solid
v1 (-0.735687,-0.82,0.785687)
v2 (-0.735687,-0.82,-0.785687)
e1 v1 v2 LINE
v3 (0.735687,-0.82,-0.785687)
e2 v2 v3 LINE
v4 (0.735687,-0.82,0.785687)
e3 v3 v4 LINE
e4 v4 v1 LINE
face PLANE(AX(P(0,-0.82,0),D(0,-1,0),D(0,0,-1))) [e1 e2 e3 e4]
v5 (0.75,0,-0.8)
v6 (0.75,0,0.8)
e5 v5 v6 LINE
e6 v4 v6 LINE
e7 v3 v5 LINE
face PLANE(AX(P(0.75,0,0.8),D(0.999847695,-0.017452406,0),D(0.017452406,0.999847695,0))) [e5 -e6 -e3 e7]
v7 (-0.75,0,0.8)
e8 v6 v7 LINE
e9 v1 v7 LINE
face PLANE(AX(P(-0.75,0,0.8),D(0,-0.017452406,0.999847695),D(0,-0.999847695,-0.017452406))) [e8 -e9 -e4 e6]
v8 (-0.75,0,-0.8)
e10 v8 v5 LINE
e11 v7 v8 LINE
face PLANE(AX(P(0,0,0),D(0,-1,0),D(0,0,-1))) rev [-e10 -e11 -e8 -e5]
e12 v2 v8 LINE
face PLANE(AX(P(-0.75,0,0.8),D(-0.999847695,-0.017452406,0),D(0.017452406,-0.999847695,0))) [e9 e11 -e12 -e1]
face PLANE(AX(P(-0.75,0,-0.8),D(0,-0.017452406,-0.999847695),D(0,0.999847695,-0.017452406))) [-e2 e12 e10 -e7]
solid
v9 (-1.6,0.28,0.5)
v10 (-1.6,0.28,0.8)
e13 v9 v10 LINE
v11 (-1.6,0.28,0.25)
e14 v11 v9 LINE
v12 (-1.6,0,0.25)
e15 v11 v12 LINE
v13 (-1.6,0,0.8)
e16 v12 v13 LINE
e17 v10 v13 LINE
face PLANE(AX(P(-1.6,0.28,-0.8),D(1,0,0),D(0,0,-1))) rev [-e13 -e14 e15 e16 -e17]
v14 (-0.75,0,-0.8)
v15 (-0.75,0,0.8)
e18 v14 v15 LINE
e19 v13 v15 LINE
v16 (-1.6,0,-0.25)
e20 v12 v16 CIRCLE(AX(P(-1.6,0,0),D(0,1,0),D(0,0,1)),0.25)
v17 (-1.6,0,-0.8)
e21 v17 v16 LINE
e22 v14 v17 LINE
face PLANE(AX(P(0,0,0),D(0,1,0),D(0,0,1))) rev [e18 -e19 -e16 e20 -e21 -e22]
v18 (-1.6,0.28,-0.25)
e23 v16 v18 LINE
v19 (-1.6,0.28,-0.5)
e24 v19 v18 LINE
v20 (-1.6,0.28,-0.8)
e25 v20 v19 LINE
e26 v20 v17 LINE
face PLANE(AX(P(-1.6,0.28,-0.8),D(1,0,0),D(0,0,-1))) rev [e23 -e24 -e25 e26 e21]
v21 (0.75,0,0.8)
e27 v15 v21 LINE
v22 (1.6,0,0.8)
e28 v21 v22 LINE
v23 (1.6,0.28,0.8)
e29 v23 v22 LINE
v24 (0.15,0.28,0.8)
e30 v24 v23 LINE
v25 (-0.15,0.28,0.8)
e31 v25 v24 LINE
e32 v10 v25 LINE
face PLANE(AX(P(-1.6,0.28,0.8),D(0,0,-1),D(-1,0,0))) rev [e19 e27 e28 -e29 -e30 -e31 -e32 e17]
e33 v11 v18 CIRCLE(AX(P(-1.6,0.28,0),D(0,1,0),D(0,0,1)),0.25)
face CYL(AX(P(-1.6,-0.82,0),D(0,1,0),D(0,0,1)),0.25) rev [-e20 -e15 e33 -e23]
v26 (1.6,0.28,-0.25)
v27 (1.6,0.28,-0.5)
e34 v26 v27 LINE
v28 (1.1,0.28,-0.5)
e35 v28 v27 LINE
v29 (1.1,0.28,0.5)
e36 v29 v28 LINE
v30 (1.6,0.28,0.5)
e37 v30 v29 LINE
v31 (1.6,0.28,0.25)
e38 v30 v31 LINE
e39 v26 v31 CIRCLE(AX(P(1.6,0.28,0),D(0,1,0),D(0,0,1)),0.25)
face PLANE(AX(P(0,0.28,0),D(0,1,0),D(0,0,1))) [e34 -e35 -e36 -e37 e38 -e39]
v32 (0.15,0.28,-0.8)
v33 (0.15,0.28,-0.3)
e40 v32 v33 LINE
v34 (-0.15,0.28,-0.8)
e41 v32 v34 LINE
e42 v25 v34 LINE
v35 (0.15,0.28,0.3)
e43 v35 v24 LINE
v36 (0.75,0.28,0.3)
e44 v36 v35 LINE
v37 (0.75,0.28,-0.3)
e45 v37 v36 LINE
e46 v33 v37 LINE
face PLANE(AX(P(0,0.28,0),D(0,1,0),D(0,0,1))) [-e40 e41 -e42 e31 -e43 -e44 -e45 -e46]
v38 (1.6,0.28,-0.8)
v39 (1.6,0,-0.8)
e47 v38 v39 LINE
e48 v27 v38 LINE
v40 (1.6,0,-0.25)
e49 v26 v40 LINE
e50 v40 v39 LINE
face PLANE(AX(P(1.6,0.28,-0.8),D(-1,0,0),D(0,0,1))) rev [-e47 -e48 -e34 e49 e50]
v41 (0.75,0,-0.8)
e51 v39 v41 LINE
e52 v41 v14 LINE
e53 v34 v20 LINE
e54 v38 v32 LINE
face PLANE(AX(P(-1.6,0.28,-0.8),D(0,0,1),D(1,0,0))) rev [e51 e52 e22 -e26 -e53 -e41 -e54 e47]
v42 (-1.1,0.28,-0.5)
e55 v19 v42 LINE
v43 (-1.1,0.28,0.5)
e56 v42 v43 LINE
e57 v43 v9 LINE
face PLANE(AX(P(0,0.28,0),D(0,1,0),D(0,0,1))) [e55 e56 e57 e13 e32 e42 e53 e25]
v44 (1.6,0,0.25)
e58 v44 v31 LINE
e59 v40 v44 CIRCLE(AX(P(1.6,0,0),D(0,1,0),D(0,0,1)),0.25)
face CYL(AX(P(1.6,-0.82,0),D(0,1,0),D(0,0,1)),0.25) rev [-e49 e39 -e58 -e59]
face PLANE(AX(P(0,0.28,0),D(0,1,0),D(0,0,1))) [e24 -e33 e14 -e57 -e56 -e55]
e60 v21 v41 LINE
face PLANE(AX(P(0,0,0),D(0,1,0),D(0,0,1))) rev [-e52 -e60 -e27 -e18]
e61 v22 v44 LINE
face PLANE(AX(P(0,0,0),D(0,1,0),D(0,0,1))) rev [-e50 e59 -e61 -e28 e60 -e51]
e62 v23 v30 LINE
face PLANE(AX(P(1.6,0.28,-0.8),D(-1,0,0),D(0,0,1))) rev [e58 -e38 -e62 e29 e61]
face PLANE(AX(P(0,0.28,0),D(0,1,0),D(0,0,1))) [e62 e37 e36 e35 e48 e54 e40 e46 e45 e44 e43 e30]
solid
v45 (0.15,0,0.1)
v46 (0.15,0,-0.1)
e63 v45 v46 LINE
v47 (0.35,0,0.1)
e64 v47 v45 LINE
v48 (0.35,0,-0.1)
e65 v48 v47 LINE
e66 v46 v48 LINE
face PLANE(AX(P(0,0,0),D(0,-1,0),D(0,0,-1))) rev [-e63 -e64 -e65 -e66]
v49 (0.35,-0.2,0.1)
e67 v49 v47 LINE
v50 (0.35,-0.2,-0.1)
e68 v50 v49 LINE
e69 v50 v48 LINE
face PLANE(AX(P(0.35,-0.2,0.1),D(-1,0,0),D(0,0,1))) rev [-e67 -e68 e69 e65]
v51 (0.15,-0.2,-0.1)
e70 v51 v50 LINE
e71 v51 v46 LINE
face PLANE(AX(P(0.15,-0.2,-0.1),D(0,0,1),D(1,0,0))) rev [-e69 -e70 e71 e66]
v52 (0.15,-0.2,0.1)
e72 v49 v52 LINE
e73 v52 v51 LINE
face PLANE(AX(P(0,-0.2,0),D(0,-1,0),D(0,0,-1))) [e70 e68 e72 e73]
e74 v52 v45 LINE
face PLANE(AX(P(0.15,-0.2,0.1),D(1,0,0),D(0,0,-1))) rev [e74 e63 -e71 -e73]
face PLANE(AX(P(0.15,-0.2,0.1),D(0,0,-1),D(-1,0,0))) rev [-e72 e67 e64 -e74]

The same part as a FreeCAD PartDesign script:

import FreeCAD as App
import Part
import Sketcher

V = App.Vector
Q = App.Units.Quantity

doc = App.newDocument("Part")
body = doc.addObject("PartDesign::Body", "Body")

# Sketch on XZ plane
sketch1 = body.newObject("Sketcher::SketchObject", "Sketch")
sketch1.AttachmentSupport = (doc.getObject("XZ_Plane"), [""])
sketch1.MapMode = "FlatFace"
sketch1.addGeometry([
    Part.LineSegment(V(-1.6, -0.8, 0), V(-1.6, 0.8, 0)),
    Part.LineSegment(V(-1.6, 0.8, 0), V(1.6, 0.8, 0)),
    Part.LineSegment(V(1.6, 0.8, 0), V(1.6, -0.8, 0)),
    Part.LineSegment(V(1.6, -0.8, 0), V(-1.6, -0.8, 0)),
], False)
sketch1.addConstraint([
    Sketcher.Constraint("Coincident", 0, 2, 1, 1),
    Sketcher.Constraint("Coincident", 1, 2, 2, 1),
    Sketcher.Constraint("Coincident", 2, 2, 3, 1),
    Sketcher.Constraint("Coincident", 3, 2, 0, 1),
    Sketcher.Constraint("Vertical", 0),
    Sketcher.Constraint("Horizontal", 1),
    Sketcher.Constraint("Vertical", 2),
    Sketcher.Constraint("Horizontal", 3),
    Sketcher.Constraint("Symmetric", 0, 2, 2, 2, -1, 1),
    Sketcher.Constraint("DistanceX", 1, 1, 1, 2, Q("3.2 mm")),
    Sketcher.Constraint("DistanceY", 0, 1, 0, 2, Q("1.6 mm")),
])
pad1 = body.newObject("PartDesign::Pad", "Pad")
pad1.Profile = sketch1
pad1.Length = 0.28
pad1.Reversed = True

# Sketch on XZ plane
sketch2 = body.newObject("Sketcher::SketchObject", "Sketch001")
sketch2.AttachmentSupport = (doc.getObject("XZ_Plane"), [""])
sketch2.MapMode = "FlatFace"
sketch2.AttachmentOffset = App.Placement(V(0, 0, -0.28), App.Rotation())
sketch2.addGeometry([
    Part.Circle(V(-1.6, 0, 0), V(0, 0, 1), 0.25),
    Part.Circle(V(1.6, 0, 0), V(0, 0, 1), 0.25),
], False)
sketch2.addConstraint([
    Sketcher.Constraint("Equal", 0, 1),
    Sketcher.Constraint("Symmetric", 0, 3, 1, 3, -1, 1),
    Sketcher.Constraint("PointOnObject", 0, 3, -1),
    Sketcher.Constraint("Diameter", 0, Q("0.5 mm")),
    Sketcher.Constraint("DistanceX", 0, 3, -1, 1, Q("1.6 mm")),
])
pocket1 = body.newObject("PartDesign::Pocket", "Pocket")
pocket1.Profile = sketch2
pocket1.Type = "ThroughAll"
pocket1.Reversed = True
body2 = doc.addObject("PartDesign::Body", "Body001")

# Sketch on XZ plane
sketch3 = body2.newObject("Sketcher::SketchObject", "Sketch002")
sketch3.AttachmentSupport = (doc.getObject("XZ_Plane001"), [""])
sketch3.MapMode = "FlatFace"
sketch3.addGeometry([
    Part.LineSegment(V(-0.8, 0.8, 0), V(-0.8, -0.8, 0)),
    Part.LineSegment(V(-0.8, -0.8, 0), V(0.8, -0.8, 0)),
    Part.LineSegment(V(0.8, -0.8, 0), V(0.8, 0.8, 0)),
    Part.LineSegment(V(0.8, 0.8, 0), V(-0.8, 0.8, 0)),
], False)
sketch3.addConstraint([
    Sketcher.Constraint("Coincident", 0, 2, 1, 1),
    Sketcher.Constraint("Coincident", 1, 2, 2, 1),
    Sketcher.Constraint("Coincident", 2, 2, 3, 1),
    Sketcher.Constraint("Coincident", 3, 2, 0, 1),
    Sketcher.Constraint("Vertical", 0),
    Sketcher.Constraint("Horizontal", 1),
    Sketcher.Constraint("Vertical", 2),
    Sketcher.Constraint("Horizontal", 3),
    Sketcher.Constraint("Symmetric", 0, 2, 2, 2, -1, 1),
    Sketcher.Constraint("DistanceX", 1, 1, 1, 2, Q("1.5 mm")),
    Sketcher.Constraint("DistanceY", 0, 2, 0, 1, Q("1.6 mm")),
])
pad2 = body2.newObject("PartDesign::Pad", "Pad001")
pad2.Profile = sketch3
pad2.Length = 0.82
pad2.TaperAngle = -1
body3 = doc.addObject("PartDesign::Body", "Body002")

# Sketch on XZ plane
sketch4 = body3.newObject("Sketcher::SketchObject", "Sketch003")
sketch4.AttachmentSupport = (doc.getObject("XZ_Plane002"), [""])
sketch4.MapMode = "FlatFace"
sketch4.addGeometry([
    Part.LineSegment(V(0.15, 0.1, 0), V(0.15, -0.1, 0)),
    Part.LineSegment(V(0.15, -0.1, 0), V(0.35, -0.1, 0)),
    Part.LineSegment(V(0.35, -0.1, 0), V(0.35, 0.1, 0)),
    Part.LineSegment(V(0.35, 0.1, 0), V(0.15, 0.1, 0)),
], False)
sketch4.addConstraint([
    Sketcher.Constraint("Coincident", 0, 2, 1, 1),
    Sketcher.Constraint("Coincident", 1, 2, 2, 1),
    Sketcher.Constraint("Coincident", 2, 2, 3, 1),
    Sketcher.Constraint("Coincident", 3, 2, 0, 1),
    Sketcher.Constraint("Vertical", 0),
    Sketcher.Constraint("Horizontal", 1),
    Sketcher.Constraint("Vertical", 2),
    Sketcher.Constraint("Horizontal", 3),
    Sketcher.Constraint("Equal", 3, 0),
    Sketcher.Constraint("DistanceX", 1, 1, 1, 2, Q("0.2 mm")),
    Sketcher.Constraint("DistanceY", 0, 2, -1, 1, Q("0.1 mm")),
    Sketcher.Constraint("DistanceX", -1, 1, 0, 2, Q("0.15 mm")),
])
pad3 = body3.newObject("PartDesign::Pad", "Pad002")
pad3.Profile = sketch4
pad3.Length = 0.2

doc.recompute()
